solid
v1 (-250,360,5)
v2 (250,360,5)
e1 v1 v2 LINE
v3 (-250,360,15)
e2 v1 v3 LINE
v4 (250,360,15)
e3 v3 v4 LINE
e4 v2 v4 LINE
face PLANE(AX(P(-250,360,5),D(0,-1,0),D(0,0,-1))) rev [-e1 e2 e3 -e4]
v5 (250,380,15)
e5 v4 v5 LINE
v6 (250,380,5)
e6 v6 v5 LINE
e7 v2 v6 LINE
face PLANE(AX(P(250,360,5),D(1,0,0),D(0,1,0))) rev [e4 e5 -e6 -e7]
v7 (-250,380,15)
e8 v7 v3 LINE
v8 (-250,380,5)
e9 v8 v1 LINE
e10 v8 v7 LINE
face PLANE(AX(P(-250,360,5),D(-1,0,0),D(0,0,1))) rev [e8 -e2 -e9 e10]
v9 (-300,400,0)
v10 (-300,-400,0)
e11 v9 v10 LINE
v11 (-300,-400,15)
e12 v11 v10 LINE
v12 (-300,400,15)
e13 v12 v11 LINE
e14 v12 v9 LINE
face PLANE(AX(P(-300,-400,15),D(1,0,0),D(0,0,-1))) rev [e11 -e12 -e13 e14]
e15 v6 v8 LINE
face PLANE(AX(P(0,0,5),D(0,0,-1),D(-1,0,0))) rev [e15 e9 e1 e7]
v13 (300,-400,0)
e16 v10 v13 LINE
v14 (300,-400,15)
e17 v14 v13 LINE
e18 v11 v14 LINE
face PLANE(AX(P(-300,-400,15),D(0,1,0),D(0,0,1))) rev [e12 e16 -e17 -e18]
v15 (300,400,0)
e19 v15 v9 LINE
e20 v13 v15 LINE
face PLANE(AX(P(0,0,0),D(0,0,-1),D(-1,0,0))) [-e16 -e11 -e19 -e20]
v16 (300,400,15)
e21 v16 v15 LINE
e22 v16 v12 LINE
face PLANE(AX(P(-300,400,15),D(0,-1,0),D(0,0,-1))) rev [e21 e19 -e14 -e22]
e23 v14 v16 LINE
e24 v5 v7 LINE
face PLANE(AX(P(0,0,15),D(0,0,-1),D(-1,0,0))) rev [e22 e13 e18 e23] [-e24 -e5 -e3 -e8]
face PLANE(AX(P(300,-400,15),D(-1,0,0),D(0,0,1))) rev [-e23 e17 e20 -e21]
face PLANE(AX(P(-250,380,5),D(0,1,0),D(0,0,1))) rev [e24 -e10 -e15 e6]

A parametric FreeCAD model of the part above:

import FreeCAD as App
import Part
import Sketcher
from FreeCAD import Vector
Q = App.Units.Quantity


def add_polygon(sketch, points):
    """Adds a closed chain of lines whose ends are joined by coincident constraints."""
    first, n = sketch.GeometryCount, len(points)
    for a, b in zip(points, points[1:] + points[:1]):
        sketch.addGeometry(Part.LineSegment(App.Vector(*a, 0), App.Vector(*b, 0)), False)
    for i in range(n):
        sketch.addConstraint(Sketcher.Constraint("Coincident", first + i, 2, first + (i + 1) % n, 1))

doc = App.newDocument("Part")
body = doc.addObject("PartDesign::Body", "Body")

# Sketch on XY plane
sketch1 = body.newObject("Sketcher::SketchObject", "Sketch")
sketch1.AttachmentSupport = (doc.getObject("XY_Plane"), [""])
sketch1.MapMode = "FlatFace"
add_polygon(sketch1, [(-300, 400), (-300, -400), (300, -400), (300, 400)])  # lines 0-3
sketch1.addConstraint(Sketcher.Constraint("Vertical", 0))
sketch1.addConstraint(Sketcher.Constraint("Horizontal", 1))
sketch1.addConstraint(Sketcher.Constraint("Vertical", 2))
sketch1.addConstraint(Sketcher.Constraint("Horizontal", 3))
sketch1.addConstraint(Sketcher.Constraint("Symmetric", 0, 2, 2, 2, -1, 1))
sketch1.addConstraint(Sketcher.Constraint("DistanceX", 1, 1, 1, 2, Q("600 mm")))
sketch1.addConstraint(Sketcher.Constraint("DistanceY", 0, 2, 0, 1, Q("800 mm")))
pad1 = body.newObject("PartDesign::Pad", "Pad")
pad1.Profile = sketch1
pad1.Length = 15

# Sketch on XY plane
sketch2 = body.newObject("Sketcher::SketchObject", "Sketch001")
sketch2.AttachmentSupport = (doc.getObject("XY_Plane"), [""])
sketch2.MapMode = "FlatFace"
sketch2.AttachmentOffset = App.Placement(Vector(0, 0, 15), App.Rotation())
add_polygon(sketch2, [(-250, 380), (-250, 360), (250, 360), (250, 380)])  # lines 0-3
sketch2.addConstraint(Sketcher.Constraint("Vertical", 0))
sketch2.addConstraint(Sketcher.Constraint("Horizontal", 1))
sketch2.addConstraint(Sketcher.Constraint("Vertical", 2))
sketch2.addConstraint(Sketcher.Constraint("Horizontal", 3))
sketch2.addConstraint(Sketcher.Constraint("DistanceX", 1, 1, 1, 2, Q("500 mm")))
sketch2.addConstraint(Sketcher.Constraint("DistanceY", 0, 2, 0, 1, Q("20 mm")))
sketch2.addConstraint(Sketcher.Constraint("DistanceX", 0, 2, -1, 1, Q("250 mm")))
sketch2.addConstraint(Sketcher.Constraint("DistanceY", -1, 1, 0, 2, Q("360 mm")))
pocket1 = body.newObject("PartDesign::Pocket", "Pocket")
pocket1.Profile = sketch2
pocket1.Length = 10

doc.recompute()
